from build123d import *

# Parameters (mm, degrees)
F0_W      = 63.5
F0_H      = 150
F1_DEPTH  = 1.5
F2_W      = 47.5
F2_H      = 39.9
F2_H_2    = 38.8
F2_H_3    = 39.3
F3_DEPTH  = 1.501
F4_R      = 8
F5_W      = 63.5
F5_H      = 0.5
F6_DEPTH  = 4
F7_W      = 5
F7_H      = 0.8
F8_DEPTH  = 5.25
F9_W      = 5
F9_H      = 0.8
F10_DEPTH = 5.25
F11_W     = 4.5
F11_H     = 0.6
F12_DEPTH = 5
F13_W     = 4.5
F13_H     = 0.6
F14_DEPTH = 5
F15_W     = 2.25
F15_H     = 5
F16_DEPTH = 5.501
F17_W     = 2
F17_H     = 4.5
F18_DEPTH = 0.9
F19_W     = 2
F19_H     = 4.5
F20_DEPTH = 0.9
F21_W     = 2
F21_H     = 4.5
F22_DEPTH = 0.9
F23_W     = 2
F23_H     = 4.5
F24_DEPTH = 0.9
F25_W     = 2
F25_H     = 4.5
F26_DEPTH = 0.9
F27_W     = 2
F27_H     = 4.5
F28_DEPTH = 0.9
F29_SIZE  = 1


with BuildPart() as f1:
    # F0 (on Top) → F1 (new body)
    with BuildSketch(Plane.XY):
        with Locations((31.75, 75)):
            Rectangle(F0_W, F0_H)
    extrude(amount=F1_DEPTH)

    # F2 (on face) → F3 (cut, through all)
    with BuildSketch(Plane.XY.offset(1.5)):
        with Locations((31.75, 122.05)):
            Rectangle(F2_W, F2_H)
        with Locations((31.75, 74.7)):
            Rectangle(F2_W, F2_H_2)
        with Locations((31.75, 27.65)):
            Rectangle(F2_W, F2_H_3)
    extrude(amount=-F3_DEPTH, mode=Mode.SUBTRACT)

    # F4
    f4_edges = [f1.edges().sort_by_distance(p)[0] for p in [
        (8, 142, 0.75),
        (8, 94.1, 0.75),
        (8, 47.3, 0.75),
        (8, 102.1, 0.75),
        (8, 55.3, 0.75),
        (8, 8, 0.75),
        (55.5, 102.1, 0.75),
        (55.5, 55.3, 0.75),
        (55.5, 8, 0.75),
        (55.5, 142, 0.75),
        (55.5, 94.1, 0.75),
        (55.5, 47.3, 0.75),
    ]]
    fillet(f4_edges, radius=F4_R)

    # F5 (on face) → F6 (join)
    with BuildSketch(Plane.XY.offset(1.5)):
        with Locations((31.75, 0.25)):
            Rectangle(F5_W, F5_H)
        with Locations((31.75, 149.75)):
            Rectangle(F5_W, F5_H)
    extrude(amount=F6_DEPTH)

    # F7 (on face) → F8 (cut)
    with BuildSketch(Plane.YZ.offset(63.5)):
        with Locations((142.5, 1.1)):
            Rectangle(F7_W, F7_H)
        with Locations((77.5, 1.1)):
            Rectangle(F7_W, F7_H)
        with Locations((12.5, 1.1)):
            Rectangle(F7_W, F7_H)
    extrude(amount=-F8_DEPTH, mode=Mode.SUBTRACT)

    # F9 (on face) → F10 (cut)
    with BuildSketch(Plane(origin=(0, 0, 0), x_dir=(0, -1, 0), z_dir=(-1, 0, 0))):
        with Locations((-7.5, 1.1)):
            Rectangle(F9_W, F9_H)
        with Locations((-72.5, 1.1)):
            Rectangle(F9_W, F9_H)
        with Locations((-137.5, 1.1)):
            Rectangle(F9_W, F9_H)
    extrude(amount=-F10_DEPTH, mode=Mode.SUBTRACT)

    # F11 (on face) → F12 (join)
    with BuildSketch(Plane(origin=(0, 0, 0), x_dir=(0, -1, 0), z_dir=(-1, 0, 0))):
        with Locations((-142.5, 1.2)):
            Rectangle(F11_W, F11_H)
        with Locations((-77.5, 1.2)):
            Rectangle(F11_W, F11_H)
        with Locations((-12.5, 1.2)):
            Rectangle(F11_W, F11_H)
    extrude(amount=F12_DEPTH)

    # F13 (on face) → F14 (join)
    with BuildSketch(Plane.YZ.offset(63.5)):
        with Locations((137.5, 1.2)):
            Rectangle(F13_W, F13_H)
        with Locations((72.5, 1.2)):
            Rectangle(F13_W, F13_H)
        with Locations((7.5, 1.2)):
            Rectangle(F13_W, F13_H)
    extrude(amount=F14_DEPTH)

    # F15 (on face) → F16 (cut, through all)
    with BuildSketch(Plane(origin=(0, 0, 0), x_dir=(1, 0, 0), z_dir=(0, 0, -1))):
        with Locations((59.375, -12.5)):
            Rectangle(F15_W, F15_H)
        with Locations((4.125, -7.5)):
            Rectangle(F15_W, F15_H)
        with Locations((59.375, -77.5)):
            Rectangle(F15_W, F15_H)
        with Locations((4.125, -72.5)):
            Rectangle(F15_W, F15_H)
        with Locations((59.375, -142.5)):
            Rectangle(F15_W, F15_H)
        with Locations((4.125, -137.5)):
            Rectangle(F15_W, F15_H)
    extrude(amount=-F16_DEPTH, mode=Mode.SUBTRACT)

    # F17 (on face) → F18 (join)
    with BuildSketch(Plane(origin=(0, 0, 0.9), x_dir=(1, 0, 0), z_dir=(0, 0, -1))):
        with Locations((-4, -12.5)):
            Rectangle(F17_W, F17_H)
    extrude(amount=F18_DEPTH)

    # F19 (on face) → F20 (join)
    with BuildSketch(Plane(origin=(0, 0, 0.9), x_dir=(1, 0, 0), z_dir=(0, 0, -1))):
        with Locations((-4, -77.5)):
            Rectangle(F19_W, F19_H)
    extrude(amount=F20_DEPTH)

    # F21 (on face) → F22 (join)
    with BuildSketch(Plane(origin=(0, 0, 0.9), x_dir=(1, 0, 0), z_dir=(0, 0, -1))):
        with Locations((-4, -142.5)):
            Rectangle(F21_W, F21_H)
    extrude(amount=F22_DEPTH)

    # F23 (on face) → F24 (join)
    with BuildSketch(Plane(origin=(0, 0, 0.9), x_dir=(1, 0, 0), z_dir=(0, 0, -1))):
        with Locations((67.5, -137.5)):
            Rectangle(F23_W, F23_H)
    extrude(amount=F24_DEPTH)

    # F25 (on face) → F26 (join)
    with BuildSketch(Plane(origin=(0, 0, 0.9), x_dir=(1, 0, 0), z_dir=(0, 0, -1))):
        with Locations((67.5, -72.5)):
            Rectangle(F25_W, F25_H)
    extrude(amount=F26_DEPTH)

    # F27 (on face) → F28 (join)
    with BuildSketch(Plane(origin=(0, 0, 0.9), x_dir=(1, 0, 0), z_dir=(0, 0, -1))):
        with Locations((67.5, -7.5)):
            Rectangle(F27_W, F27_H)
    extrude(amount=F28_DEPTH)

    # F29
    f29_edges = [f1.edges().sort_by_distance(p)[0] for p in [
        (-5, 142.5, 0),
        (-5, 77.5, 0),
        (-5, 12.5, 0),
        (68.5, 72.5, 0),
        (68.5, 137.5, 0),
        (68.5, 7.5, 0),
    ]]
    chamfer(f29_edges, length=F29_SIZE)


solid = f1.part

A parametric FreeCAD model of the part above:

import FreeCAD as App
import Part
import Sketcher

V = App.Vector
Q = App.Units.Quantity


def edges_at(feature, points):
    """Names of the edges that pass closest to the given points."""
    edges = feature.Shape.Edges
    near = lambda p: min(range(len(edges)), key=lambda i: edges[i].distToShape(Part.Vertex(*p))[0])
    return sorted({f"Edge{near(p) + 1}" for p in points})


def add_polygon(sketch, points):
    """Adds a closed chain of lines whose ends are joined by coincident constraints."""
    first, n = sketch.GeometryCount, len(points)
    for a, b in zip(points, points[1:] + points[:1]):
        sketch.addGeometry(Part.LineSegment(App.Vector(*a, 0), App.Vector(*b, 0)), False)
    for i in range(n):
        sketch.addConstraint(Sketcher.Constraint("Coincident", first + i, 2, first + (i + 1) % n, 1))

doc = App.newDocument("Part")
body = doc.addObject("PartDesign::Body", "Body")

sketch1 = body.newObject("Sketcher::SketchObject", "Sketch")
sketch1.AttachmentSupport = (doc.getObject("XY_Plane"), [""])
sketch1.MapMode = "FlatFace"
add_polygon(sketch1, [(0, 150), (0, 0), (64, 0), (64, 150)])
sketch1.addConstraint([
    Sketcher.Constraint("Vertical", 0),
    Sketcher.Constraint("Horizontal", 1),
    Sketcher.Constraint("Vertical", 2),
    Sketcher.Constraint("Horizontal", 3),
    Sketcher.Constraint("Coincident", 0, 2, -1, 1),
    Sketcher.Constraint("DistanceY", 0, 2, 0, 1, Q("150 mm")),
    Sketcher.Constraint("DistanceX", 1, 1, 1, 2, Q("63.5 mm")),
])
pad1 = body.newObject("PartDesign::Pad", "Pad")
pad1.Profile = sketch1
pad1.Length = 1.5

sketch2 = body.newObject("Sketcher::SketchObject", "Sketch001")
sketch2.AttachmentSupport = (doc.getObject("XY_Plane"), [""])
sketch2.MapMode = "FlatFace"
sketch2.AttachmentOffset = App.Placement(V(0, 0, 1.5), App.Rotation())
add_polygon(sketch2, [(8, 142), (8, 102), (56, 102), (56, 142)])
add_polygon(sketch2, [(8, 94), (8, 55), (56, 55), (56, 94)])
add_polygon(sketch2, [(8, 47), (8, 8), (56, 8), (56, 47)])
sketch2.addConstraint([
    Sketcher.Constraint("Vertical", 0),
    Sketcher.Constraint("Horizontal", 1),
    Sketcher.Constraint("Vertical", 2),
    Sketcher.Constraint("Horizontal", 3),
    Sketcher.Constraint("Vertical", 4),
    Sketcher.Constraint("Horizontal", 5),
    Sketcher.Constraint("Vertical", 6),
    Sketcher.Constraint("Horizontal", 7),
    Sketcher.Constraint("Vertical", 8),
    Sketcher.Constraint("Horizontal", 9),
    Sketcher.Constraint("Vertical", 10),
    Sketcher.Constraint("Horizontal", 11),
    Sketcher.Constraint("Vertical", 3, 2, 4, 2),
    Sketcher.Constraint("Vertical", 2, 2, 5, 2),
    Sketcher.Constraint("Vertical", 7, 2, 8, 2),
    Sketcher.Constraint("Vertical", 6, 2, 9, 2),
    Sketcher.Constraint("DistanceX", 1, 1, 1, 2, Q("47.5 mm")),
    Sketcher.Constraint("DistanceY", 0, 2, 0, 1, Q("39.9 mm")),
    Sketcher.Constraint("DistanceY", 4, 2, 4, 1, Q("38.8 mm")),
    Sketcher.Constraint("DistanceY", 8, 2, 8, 1, Q("39.3 mm")),
    Sketcher.Constraint("DistanceX", -1, 1, 0, 2, Q("8 mm")),
    Sketcher.Constraint("DistanceY", -1, 1, 2, 2, Q("142 mm")),
    Sketcher.Constraint("DistanceY", -1, 1, 8, 2, Q("8 mm")),
    Sketcher.Constraint("DistanceY", 6, 2, 1, 2, Q("8 mm")),
])
pocket1 = body.newObject("PartDesign::Pocket", "Pocket")
pocket1.Profile = sketch2
pocket1.Type = "ThroughAll"
doc.recompute()

fillet = body.newObject("PartDesign::Fillet", "Fillet")
fillet.Base = (pocket1, edges_at(pocket1, [
    (8, 142, 0.75),
    (8, 94.1, 0.75),
    (8, 47.3, 0.75),
    (8, 102.1, 0.75),
    (8, 55.3, 0.75),
    (8, 8, 0.75),
    (55.5, 102.1, 0.75),
    (55.5, 55.3, 0.75),
    (55.5, 8, 0.75),
    (55.5, 142, 0.75),
    (55.5, 94.1, 0.75),
    (55.5, 47.3, 0.75),
]))
fillet.Radius = 8

sketch3 = body.newObject("Sketcher::SketchObject", "Sketch002")
sketch3.AttachmentSupport = (doc.getObject("XY_Plane"), [""])
sketch3.MapMode = "FlatFace"
sketch3.AttachmentOffset = App.Placement(V(0, 0, 1.5), App.Rotation())
add_polygon(sketch3, [(0, 0.5), (0, 0), (63.5, 0), (63.5, 0.5)])
add_polygon(sketch3, [(0, 150), (0, 149.5), (63.5, 149.5), (63.5, 150)])
sketch3.addConstraint([
    Sketcher.Constraint("Vertical", 0),
    Sketcher.Constraint("Horizontal", 1),
    Sketcher.Constraint("Vertical", 2),
    Sketcher.Constraint("Horizontal", 3),
    Sketcher.Constraint("Vertical", 4),
    Sketcher.Constraint("Horizontal", 5),
    Sketcher.Constraint("Vertical", 6),
    Sketcher.Constraint("Horizontal", 7),
    Sketcher.Constraint("Coincident", 0, 2, -1, 1),
    Sketcher.Constraint("PointOnObject", 4, 2, -2),
    Sketcher.Constraint("Vertical", 2, 2, 5, 2),
    Sketcher.Constraint("Equal", 2, 4),
    Sketcher.Constraint("DistanceX", 1, 1, 1, 2, Q("63.5 mm")),
    Sketcher.Constraint("DistanceY", 0, 2, 0, 1, Q("0.5 mm")),
    Sketcher.Constraint("DistanceY", -1, 1, 6, 2, Q("150 mm")),
])
pad2 = body.newObject("PartDesign::Pad", "Pad001")
pad2.Profile = sketch3
pad2.Length = 4

sketch4 = body.newObject("Sketcher::SketchObject", "Sketch003")
sketch4.AttachmentSupport = (doc.getObject("YZ_Plane"), [""])
sketch4.MapMode = "FlatFace"
sketch4.AttachmentOffset = App.Placement(V(0, 0, 63.5), App.Rotation())
add_polygon(sketch4, [(140, 1.5), (140, 0.7), (145, 0.7), (145, 1.5)])
add_polygon(sketch4, [(75, 1.5), (75, 0.7), (80, 0.7), (80, 1.5)])
add_polygon(sketch4, [(10, 1.5), (10, 0.7), (15, 0.7), (15, 1.5)])
sketch4.addConstraint([
    Sketcher.Constraint("Vertical", 0),
    Sketcher.Constraint("Horizontal", 1),
    Sketcher.Constraint("Vertical", 2),
    Sketcher.Constraint("Horizontal", 3),
    Sketcher.Constraint("Vertical", 4),
    Sketcher.Constraint("Horizontal", 5),
    Sketcher.Constraint("Vertical", 6),
    Sketcher.Constraint("Horizontal", 7),
    Sketcher.Constraint("Vertical", 8),
    Sketcher.Constraint("Horizontal", 9),
    Sketcher.Constraint("Vertical", 10),
    Sketcher.Constraint("Horizontal", 11),
    Sketcher.Constraint("Horizontal", 1, 2, 4, 2),
    Sketcher.Constraint("Horizontal", 3, 2, 6, 2),
    Sketcher.Constraint("Horizontal", 5, 2, 8, 2),
    Sketcher.Constraint("Horizontal", 7, 2, 10, 2),
    Sketcher.Constraint("Equal", 3, 5),
    Sketcher.Constraint("Equal", 7, 9),
    Sketcher.Constraint("DistanceX", 1, 1, 1, 2, Q("5 mm")),
    Sketcher.Constraint("DistanceY", 0, 2, 0, 1, Q("0.8 mm")),
    Sketcher.Constraint("DistanceX", -1, 1, 0, 2, Q("140 mm")),
    Sketcher.Constraint("DistanceX", -1, 1, 4, 2, Q("75 mm")),
    Sketcher.Constraint("DistanceX", -1, 1, 8, 2, Q("10 mm")),
    Sketcher.Constraint("DistanceY", -1, 1, 0, 2, Q("0.7 mm")),
])
pocket2 = body.newObject("PartDesign::Pocket", "Pocket001")
pocket2.Profile = sketch4
pocket2.Length = 5.25

sketch5 = body.newObject("Sketcher::SketchObject", "Sketch004")
sketch5.AttachmentSupport = (doc.getObject("YZ_Plane"), [""])
sketch5.MapMode = "FlatFace"
add_polygon(sketch5, [(10, 1.5), (10, 0.7), (5, 0.7), (5, 1.5)])
add_polygon(sketch5, [(75, 1.5), (75, 0.7), (70, 0.7), (70, 1.5)])
add_polygon(sketch5, [(140, 1.5), (140, 0.7), (135, 0.7), (135, 1.5)])
sketch5.addConstraint([
    Sketcher.Constraint("Vertical", 0),
    Sketcher.Constraint("Horizontal", 1),
    Sketcher.Constraint("Vertical", 2),
    Sketcher.Constraint("Horizontal", 3),
    Sketcher.Constraint("Vertical", 4),
    Sketcher.Constraint("Horizontal", 5),
    Sketcher.Constraint("Vertical", 6),
    Sketcher.Constraint("Horizontal", 7),
    Sketcher.Constraint("Vertical", 8),
    Sketcher.Constraint("Horizontal", 9),
    Sketcher.Constraint("Vertical", 10),
    Sketcher.Constraint("Horizontal", 11),
    Sketcher.Constraint("Horizontal", 1, 2, 4, 2),
    Sketcher.Constraint("Horizontal", 3, 2, 6, 2),
    Sketcher.Constraint("Horizontal", 5, 2, 8, 2),
    Sketcher.Constraint("Horizontal", 7, 2, 10, 2),
    Sketcher.Constraint("Equal", 3, 5),
    Sketcher.Constraint("Equal", 7, 9),
    Sketcher.Constraint("DistanceX", 1, 2, 1, 1, Q("5 mm")),
    Sketcher.Constraint("DistanceY", 0, 2, 0, 1, Q("0.8 mm")),
    Sketcher.Constraint("DistanceX", -1, 1, 0, 2, Q("10 mm")),
    Sketcher.Constraint("DistanceX", -1, 1, 4, 2, Q("75 mm")),
    Sketcher.Constraint("DistanceX", -1, 1, 8, 2, Q("140 mm")),
    Sketcher.Constraint("DistanceY", -1, 1, 0, 2, Q("0.7 mm")),
])
pocket3 = body.newObject("PartDesign::Pocket", "Pocket002")
pocket3.Profile = sketch5
pocket3.Length = 5.25
pocket3.Reversed = True

sketch6 = body.newObject("Sketcher::SketchObject", "Sketch005")
sketch6.AttachmentSupport = (doc.getObject("YZ_Plane"), [""])
sketch6.MapMode = "FlatFace"
add_polygon(sketch6, [(144.8, 1.5), (144.8, 0.9), (140.2, 0.9), (140.2, 1.5)])
add_polygon(sketch6, [(79.8, 1.5), (79.8, 0.9), (75.2, 0.9), (75.2, 1.5)])
add_polygon(sketch6, [(14.8, 1.5), (14.8, 0.9), (10.2, 0.9), (10.2, 1.5)])
sketch6.addConstraint([
    Sketcher.Constraint("Vertical", 0),
    Sketcher.Constraint("Horizontal", 1),
    Sketcher.Constraint("Vertical", 2),
    Sketcher.Constraint("Horizontal", 3),
    Sketcher.Constraint("Vertical", 4),
    Sketcher.Constraint("Horizontal", 5),
    Sketcher.Constraint("Vertical", 6),
    Sketcher.Constraint("Horizontal", 7),
    Sketcher.Constraint("Vertical", 8),
    Sketcher.Constraint("Horizontal", 9),
    Sketcher.Constraint("Vertical", 10),
    Sketcher.Constraint("Horizontal", 11),
    Sketcher.Constraint("Horizontal", 1, 2, 4, 2),
    Sketcher.Constraint("Horizontal", 3, 2, 6, 2),
    Sketcher.Constraint("Horizontal", 5, 2, 8, 2),
    Sketcher.Constraint("Horizontal", 7, 2, 10, 2),
    Sketcher.Constraint("Equal", 3, 5),
    Sketcher.Constraint("Equal", 7, 9),
    Sketcher.Constraint("DistanceX", 1, 2, 1, 1, Q("4.5 mm")),
    Sketcher.Constraint("DistanceY", 0, 2, 0, 1, Q("0.6 mm")),
    Sketcher.Constraint("DistanceX", 4, 2, 0, 2, Q("65 mm")),
    Sketcher.Constraint("DistanceX", 8, 2, 4, 2, Q("65 mm")),
    Sketcher.Constraint("DistanceY", -1, 1, 0, 2, Q("0.9 mm")),
    Sketcher.Constraint("DistanceX", -1, 1, 0, 2, Q("144.75 mm")),
])
pad3 = body.newObject("PartDesign::Pad", "Pad002")
pad3.Profile = sketch6
pad3.Length = 5
pad3.Reversed = True

sketch7 = body.newObject("Sketcher::SketchObject", "Sketch006")
sketch7.AttachmentSupport = (doc.getObject("YZ_Plane"), [""])
sketch7.MapMode = "FlatFace"
sketch7.AttachmentOffset = App.Placement(V(0, 0, 63.5), App.Rotation())
add_polygon(sketch7, [(135.2, 1.5), (135.2, 0.9), (139.8, 0.9), (139.8, 1.5)])
add_polygon(sketch7, [(70.2, 1.5), (70.2, 0.9), (74.8, 0.9), (74.8, 1.5)])
add_polygon(sketch7, [(5.2, 1.5), (5.2, 0.9), (9.8, 0.9), (9.8, 1.5)])
sketch7.addConstraint([
    Sketcher.Constraint("Vertical", 0),
    Sketcher.Constraint("Horizontal", 1),
    Sketcher.Constraint("Vertical", 2),
    Sketcher.Constraint("Horizontal", 3),
    Sketcher.Constraint("Vertical", 4),
    Sketcher.Constraint("Horizontal", 5),
    Sketcher.Constraint("Vertical", 6),
    Sketcher.Constraint("Horizontal", 7),
    Sketcher.Constraint("Vertical", 8),
    Sketcher.Constraint("Horizontal", 9),
    Sketcher.Constraint("Vertical", 10),
    Sketcher.Constraint("Horizontal", 11),
    Sketcher.Constraint("Horizontal", 1, 2, 4, 2),
    Sketcher.Constraint("Horizontal", 3, 2, 6, 2),
    Sketcher.Constraint("Horizontal", 5, 2, 8, 2),
    Sketcher.Constraint("Horizontal", 7, 2, 10, 2),
    Sketcher.Constraint("Equal", 3, 5),
    Sketcher.Constraint("Equal", 7, 9),
    Sketcher.Constraint("DistanceX", 1, 1, 1, 2, Q("4.5 mm")),
    Sketcher.Constraint("DistanceY", 0, 2, 0, 1, Q("0.6 mm")),
    Sketcher.Constraint("DistanceX", 4, 2, 0, 2, Q("65 mm")),
    Sketcher.Constraint("DistanceX", 8, 2, 4, 2, Q("65 mm")),
    Sketcher.Constraint("DistanceY", -1, 1, 0, 2, Q("0.9 mm")),
    Sketcher.Constraint("DistanceX", -1, 1, 0, 2, Q("135.25 mm")),
])
pad4 = body.newObject("PartDesign::Pad", "Pad003")
pad4.Profile = sketch7
pad4.Length = 5

sketch8 = body.newObject("Sketcher::SketchObject", "Sketch007")
sketch8.AttachmentSupport = (doc.getObject("XY_Plane"), [""])
sketch8.MapMode = "FlatFace"
add_polygon(sketch8, [(58.2, 10), (58.2, 15), (60.5, 15), (60.5, 10)])
add_polygon(sketch8, [(3, 5), (3, 10), (5.2, 10), (5.2, 5)])
add_polygon(sketch8, [(58.2, 75), (58.2, 80), (60.5, 80), (60.5, 75)])
add_polygon(sketch8, [(3, 70), (3, 75), (5.2, 75), (5.2, 70)])
add_polygon(sketch8, [(58.2, 140), (58.2, 145), (60.5, 145), (60.5, 140)])
add_polygon(sketch8, [(3, 135), (3, 140), (5.2, 140), (5.2, 135)])
sketch8.addConstraint([
    Sketcher.Constraint("Vertical", 0),
    Sketcher.Constraint("Horizontal", 1),
    Sketcher.Constraint("Vertical", 2),
    Sketcher.Constraint("Horizontal", 3),
    Sketcher.Constraint("Vertical", 4),
    Sketcher.Constraint("Horizontal", 5),
    Sketcher.Constraint("Vertical", 6),
    Sketcher.Constraint("Horizontal", 7),
    Sketcher.Constraint("Vertical", 8),
    Sketcher.Constraint("Horizontal", 9),
    Sketcher.Constraint("Vertical", 10),
    Sketcher.Constraint("Horizontal", 11),
    Sketcher.Constraint("Vertical", 12),
    Sketcher.Constraint("Horizontal", 13),
    Sketcher.Constraint("Vertical", 14),
    Sketcher.Constraint("Horizontal", 15),
    Sketcher.Constraint("Vertical", 16),
    Sketcher.Constraint("Horizontal", 17),
    Sketcher.Constraint("Vertical", 18),
    Sketcher.Constraint("Horizontal", 19),
    Sketcher.Constraint("Vertical", 20),
    Sketcher.Constraint("Horizontal", 21),
    Sketcher.Constraint("Vertical", 22),
    Sketcher.Constraint("Horizontal", 23),
    Sketcher.Constraint("Horizontal", 3, 2, 4, 2),
    Sketcher.Constraint("Horizontal", 11, 2, 12, 2),
    Sketcher.Constraint("Horizontal", 19, 2, 20, 2),
    Sketcher.Constraint("Vertical", 3, 2, 8, 2),
    Sketcher.Constraint("Vertical", 2, 2, 9, 2),
    Sketcher.Constraint("Vertical", 7, 2, 12, 2),
    Sketcher.Constraint("Vertical", 6, 2, 13, 2),
    Sketcher.Constraint("Vertical", 11, 2, 16, 2),
    Sketcher.Constraint("Vertical", 10, 2, 17, 2),
    Sketcher.Constraint("Vertical", 15, 2, 20, 2),
    Sketcher.Constraint("Vertical", 14, 2, 21, 2),
    Sketcher.Constraint("Equal", 3, 5),
    Sketcher.Constraint("Equal", 2, 4),
    Sketcher.Constraint("Equal", 6, 8),
    Sketcher.Constraint("Equal", 10, 12),
    Sketcher.Constraint("Equal", 14, 16),
    Sketcher.Constraint("Equal", 18, 20),
    Sketcher.Constraint("DistanceY", 0, 1, 0, 2, Q("5 mm")),
    Sketcher.Constraint("DistanceY", -1, 1, 0, 2, Q("15 mm")),
    Sketcher.Constraint("DistanceX", -1, 1, 4, 2, Q("3 mm")),
    Sketcher.Constraint("DistanceY", -1, 1, 8, 2, Q("80 mm")),
    Sketcher.Constraint("DistanceY", -1, 1, 16, 2, Q("145 mm")),
    Sketcher.Constraint("DistanceX", 5, 2, 3, 2, Q("53 mm")),
    Sketcher.Constraint("DistanceX", 1, 1, 1, 2, Q("2.25 mm")),
])
pocket4 = body.newObject("PartDesign::Pocket", "Pocket003")
pocket4.Profile = sketch8
pocket4.Type = "ThroughAll"
pocket4.Reversed = True

sketch9 = body.newObject("Sketcher::SketchObject", "Sketch008")
sketch9.AttachmentSupport = (doc.getObject("XY_Plane"), [""])
sketch9.MapMode = "FlatFace"
sketch9.AttachmentOffset = App.Placement(V(0, 0, 0.9), App.Rotation())
add_polygon(sketch9, [(-5, 10.2), (-5, 14.8), (-3, 14.8), (-3, 10.2)])
sketch9.addConstraint([
    Sketcher.Constraint("Vertical", 0),
    Sketcher.Constraint("Horizontal", 1),
    Sketcher.Constraint("Vertical", 2),
    Sketcher.Constraint("Horizontal", 3),
    Sketcher.Constraint("DistanceX", 1, 1, 1, 2, Q("2 mm")),
    Sketcher.Constraint("DistanceY", 0, 1, 0, 2, Q("4.5 mm")),
    Sketcher.Constraint("DistanceX", 0, 2, -1, 1, Q("5 mm")),
    Sketcher.Constraint("DistanceY", -1, 1, 0, 2, Q("14.75 mm")),
])
pad5 = body.newObject("PartDesign::Pad", "Pad004")
pad5.Profile = sketch9
pad5.Length = 0.9
pad5.Reversed = True

sketch10 = body.newObject("Sketcher::SketchObject", "Sketch009")
sketch10.AttachmentSupport = (doc.getObject("XY_Plane"), [""])
sketch10.MapMode = "FlatFace"
sketch10.AttachmentOffset = App.Placement(V(0, 0, 0.9), App.Rotation())
add_polygon(sketch10, [(-5, 75.2), (-5, 79.8), (-3, 79.8), (-3, 75.2)])
sketch10.addConstraint([
    Sketcher.Constraint("Vertical", 0),
    Sketcher.Constraint("Horizontal", 1),
    Sketcher.Constraint("Vertical", 2),
    Sketcher.Constraint("Horizontal", 3),
    Sketcher.Constraint("DistanceX", 1, 1, 1, 2, Q("2 mm")),
    Sketcher.Constraint("DistanceY", 0, 1, 0, 2, Q("4.5 mm")),
    Sketcher.Constraint("DistanceX", 0, 2, -1, 1, Q("5 mm")),
    Sketcher.Constraint("DistanceY", -1, 1, 0, 2, Q("79.75 mm")),
])
pad6 = body.newObject("PartDesign::Pad", "Pad005")
pad6.Profile = sketch10
pad6.Length = 0.9
pad6.Reversed = True

sketch11 = body.newObject("Sketcher::SketchObject", "Sketch010")
sketch11.AttachmentSupport = (doc.getObject("XY_Plane"), [""])
sketch11.MapMode = "FlatFace"
sketch11.AttachmentOffset = App.Placement(V(0, 0, 0.9), App.Rotation())
add_polygon(sketch11, [(-5, 140.2), (-5, 144.8), (-3, 144.8), (-3, 140.2)])
sketch11.addConstraint([
    Sketcher.Constraint("Vertical", 0),
    Sketcher.Constraint("Horizontal", 1),
    Sketcher.Constraint("Vertical", 2),
    Sketcher.Constraint("Horizontal", 3),
    Sketcher.Constraint("DistanceX", 1, 1, 1, 2, Q("2 mm")),
    Sketcher.Constraint("DistanceY", 0, 1, 0, 2, Q("4.5 mm")),
    Sketcher.Constraint("DistanceX", 0, 2, -1, 1, Q("5 mm")),
    Sketcher.Constraint("DistanceY", -1, 1, 0, 2, Q("144.75 mm")),
])
pad7 = body.newObject("PartDesign::Pad", "Pad006")
pad7.Profile = sketch11
pad7.Length = 0.9
pad7.Reversed = True

sketch12 = body.newObject("Sketcher::SketchObject", "Sketch011")
sketch12.AttachmentSupport = (doc.getObject("XY_Plane"), [""])
sketch12.MapMode = "FlatFace"
sketch12.AttachmentOffset = App.Placement(V(0, 0, 0.9), App.Rotation())
add_polygon(sketch12, [(66.5, 135.2), (66.5, 139.8), (68.5, 139.8), (68.5, 135.2)])
sketch12.addConstraint([
    Sketcher.Constraint("Vertical", 0),
    Sketcher.Constraint("Horizontal", 1),
    Sketcher.Constraint("Vertical", 2),
    Sketcher.Constraint("Horizontal", 3),
    Sketcher.Constraint("DistanceX", 1, 1, 1, 2, Q("2 mm")),
    Sketcher.Constraint("DistanceY", 0, 1, 0, 2, Q("4.5 mm")),
    Sketcher.Constraint("DistanceX", -1, 1, 0, 2, Q("66.5 mm")),
    Sketcher.Constraint("DistanceY", -1, 1, 0, 2, Q("139.75 mm")),
])
pad8 = body.newObject("PartDesign::Pad", "Pad007")
pad8.Profile = sketch12
pad8.Length = 0.9
pad8.Reversed = True

sketch13 = body.newObject("Sketcher::SketchObject", "Sketch012")
sketch13.AttachmentSupport = (doc.getObject("XY_Plane"), [""])
sketch13.MapMode = "FlatFace"
sketch13.AttachmentOffset = App.Placement(V(0, 0, 0.9), App.Rotation())
add_polygon(sketch13, [(66.5, 70.2), (66.5, 74.8), (68.5, 74.8), (68.5, 70.2)])
sketch13.addConstraint([
    Sketcher.Constraint("Vertical", 0),
    Sketcher.Constraint("Horizontal", 1),
    Sketcher.Constraint("Vertical", 2),
    Sketcher.Constraint("Horizontal", 3),
    Sketcher.Constraint("DistanceX", 1, 1, 1, 2, Q("2 mm")),
    Sketcher.Constraint("DistanceY", 0, 1, 0, 2, Q("4.5 mm")),
    Sketcher.Constraint("DistanceX", -1, 1, 0, 2, Q("66.5 mm")),
    Sketcher.Constraint("DistanceY", -1, 1, 0, 2, Q("74.75 mm")),
])
pad9 = body.newObject("PartDesign::Pad", "Pad008")
pad9.Profile = sketch13
pad9.Length = 0.9
pad9.Reversed = True

sketch14 = body.newObject("Sketcher::SketchObject", "Sketch013")
sketch14.AttachmentSupport = (doc.getObject("XY_Plane"), [""])
sketch14.MapMode = "FlatFace"
sketch14.AttachmentOffset = App.Placement(V(0, 0, 0.9), App.Rotation())
add_polygon(sketch14, [(66.5, 5.2), (66.5, 9.8), (68.5, 9.8), (68.5, 5.2)])
sketch14.addConstraint([
    Sketcher.Constraint("Vertical", 0),
    Sketcher.Constraint("Horizontal", 1),
    Sketcher.Constraint("Vertical", 2),
    Sketcher.Constraint("Horizontal", 3),
    Sketcher.Constraint("DistanceX", 1, 1, 1, 2, Q("2 mm")),
    Sketcher.Constraint("DistanceY", 0, 1, 0, 2, Q("4.5 mm")),
    Sketcher.Constraint("DistanceX", -1, 1, 0, 2, Q("66.5 mm")),
    Sketcher.Constraint("DistanceY", -1, 1, 0, 2, Q("9.75 mm")),
])
pad10 = body.newObject("PartDesign::Pad", "Pad009")
pad10.Profile = sketch14
pad10.Length = 0.9
pad10.Reversed = True
doc.recompute()

chamfer = body.newObject("PartDesign::Chamfer", "Chamfer")
chamfer.Base = (pad10, edges_at(pad10, [
    (-5, 142.5, 0),
    (-5, 77.5, 0),
    (-5, 12.5, 0),
    (68.5, 72.5, 0),
    (68.5, 137.5, 0),
    (68.5, 7.5, 0),
]))
chamfer.Size = 1

doc.recompute()
